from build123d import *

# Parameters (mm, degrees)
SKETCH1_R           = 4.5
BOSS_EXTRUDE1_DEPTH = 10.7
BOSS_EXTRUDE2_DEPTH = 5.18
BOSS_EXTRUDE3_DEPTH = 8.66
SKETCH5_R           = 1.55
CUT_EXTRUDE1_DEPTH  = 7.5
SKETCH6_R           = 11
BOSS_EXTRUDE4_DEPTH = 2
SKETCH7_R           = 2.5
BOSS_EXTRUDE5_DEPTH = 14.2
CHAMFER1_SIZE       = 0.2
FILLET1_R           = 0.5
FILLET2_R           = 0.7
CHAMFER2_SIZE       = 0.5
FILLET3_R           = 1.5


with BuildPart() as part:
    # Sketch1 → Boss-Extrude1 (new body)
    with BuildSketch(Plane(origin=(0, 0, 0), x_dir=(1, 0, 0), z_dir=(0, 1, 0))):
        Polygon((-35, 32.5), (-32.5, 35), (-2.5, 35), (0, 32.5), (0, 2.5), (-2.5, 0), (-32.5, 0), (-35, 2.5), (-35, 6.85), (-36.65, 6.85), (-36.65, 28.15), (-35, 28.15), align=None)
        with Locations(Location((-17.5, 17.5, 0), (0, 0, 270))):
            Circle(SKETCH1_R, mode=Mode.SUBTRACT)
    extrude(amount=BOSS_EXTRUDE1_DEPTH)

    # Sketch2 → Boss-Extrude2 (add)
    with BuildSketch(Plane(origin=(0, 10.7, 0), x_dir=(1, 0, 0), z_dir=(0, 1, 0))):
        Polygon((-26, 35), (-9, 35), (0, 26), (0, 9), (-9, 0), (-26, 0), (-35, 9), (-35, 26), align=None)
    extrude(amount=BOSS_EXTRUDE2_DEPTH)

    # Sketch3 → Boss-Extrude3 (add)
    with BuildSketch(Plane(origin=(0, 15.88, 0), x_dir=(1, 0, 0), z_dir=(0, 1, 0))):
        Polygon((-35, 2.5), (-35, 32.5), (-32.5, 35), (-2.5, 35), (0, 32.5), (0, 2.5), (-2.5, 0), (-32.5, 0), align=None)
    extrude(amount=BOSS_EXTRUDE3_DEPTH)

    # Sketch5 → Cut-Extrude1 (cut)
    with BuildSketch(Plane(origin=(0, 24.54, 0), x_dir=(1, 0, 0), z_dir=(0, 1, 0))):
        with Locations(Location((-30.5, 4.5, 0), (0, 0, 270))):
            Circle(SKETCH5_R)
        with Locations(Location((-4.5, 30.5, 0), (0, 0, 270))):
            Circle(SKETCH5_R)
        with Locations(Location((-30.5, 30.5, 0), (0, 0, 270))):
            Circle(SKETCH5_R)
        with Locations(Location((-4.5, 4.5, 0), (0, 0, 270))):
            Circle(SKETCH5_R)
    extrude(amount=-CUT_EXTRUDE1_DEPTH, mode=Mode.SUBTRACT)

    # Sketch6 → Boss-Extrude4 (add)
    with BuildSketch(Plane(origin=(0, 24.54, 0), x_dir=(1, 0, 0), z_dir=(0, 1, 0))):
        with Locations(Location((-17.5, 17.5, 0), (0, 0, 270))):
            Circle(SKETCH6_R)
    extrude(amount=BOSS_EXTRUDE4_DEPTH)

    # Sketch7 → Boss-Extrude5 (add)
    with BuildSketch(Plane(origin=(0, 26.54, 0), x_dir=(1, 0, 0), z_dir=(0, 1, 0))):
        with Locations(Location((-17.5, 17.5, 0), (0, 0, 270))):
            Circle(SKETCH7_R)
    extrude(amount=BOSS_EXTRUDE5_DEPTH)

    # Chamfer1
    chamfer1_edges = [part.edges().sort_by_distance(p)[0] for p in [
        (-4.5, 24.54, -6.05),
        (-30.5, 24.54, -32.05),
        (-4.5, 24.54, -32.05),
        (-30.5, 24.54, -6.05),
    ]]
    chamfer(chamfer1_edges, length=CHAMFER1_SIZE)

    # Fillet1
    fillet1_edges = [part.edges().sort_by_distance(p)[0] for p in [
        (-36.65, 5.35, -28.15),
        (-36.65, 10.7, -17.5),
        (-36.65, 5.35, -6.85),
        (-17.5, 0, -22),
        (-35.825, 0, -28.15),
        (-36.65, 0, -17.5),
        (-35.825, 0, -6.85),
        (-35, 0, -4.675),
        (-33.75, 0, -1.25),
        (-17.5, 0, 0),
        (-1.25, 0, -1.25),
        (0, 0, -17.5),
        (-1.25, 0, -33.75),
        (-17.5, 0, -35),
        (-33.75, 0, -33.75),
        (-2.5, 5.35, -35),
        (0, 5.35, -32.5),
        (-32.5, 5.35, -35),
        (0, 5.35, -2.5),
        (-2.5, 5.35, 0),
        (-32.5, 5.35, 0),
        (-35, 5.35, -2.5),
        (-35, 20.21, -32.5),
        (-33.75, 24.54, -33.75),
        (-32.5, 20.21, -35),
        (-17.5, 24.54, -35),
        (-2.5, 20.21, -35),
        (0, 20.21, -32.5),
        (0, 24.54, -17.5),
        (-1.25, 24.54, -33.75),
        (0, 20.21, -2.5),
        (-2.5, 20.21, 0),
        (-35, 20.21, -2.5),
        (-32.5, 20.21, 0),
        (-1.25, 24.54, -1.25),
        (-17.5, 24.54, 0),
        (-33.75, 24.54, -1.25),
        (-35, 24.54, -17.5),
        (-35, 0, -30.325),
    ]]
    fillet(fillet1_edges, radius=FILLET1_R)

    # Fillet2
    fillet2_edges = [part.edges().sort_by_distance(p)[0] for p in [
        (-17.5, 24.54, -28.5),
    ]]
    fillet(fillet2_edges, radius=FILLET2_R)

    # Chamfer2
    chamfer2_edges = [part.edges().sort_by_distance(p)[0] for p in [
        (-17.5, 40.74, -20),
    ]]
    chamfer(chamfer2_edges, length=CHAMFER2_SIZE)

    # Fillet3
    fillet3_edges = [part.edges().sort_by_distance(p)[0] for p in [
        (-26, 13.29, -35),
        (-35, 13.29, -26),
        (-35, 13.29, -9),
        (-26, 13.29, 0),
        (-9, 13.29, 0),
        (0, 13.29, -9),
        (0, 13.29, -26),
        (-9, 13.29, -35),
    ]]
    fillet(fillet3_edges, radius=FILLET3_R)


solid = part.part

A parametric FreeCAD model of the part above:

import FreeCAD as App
import Part
import Sketcher

V = App.Vector
Q = App.Units.Quantity


def edges_at(feature, points):
    """Names of the edges that pass closest to the given points."""
    edges = feature.Shape.Edges
    near = lambda p: min(range(len(edges)), key=lambda i: edges[i].distToShape(Part.Vertex(*p))[0])
    return sorted({f"Edge{near(p) + 1}" for p in points})


def add_polygon(sketch, points):
    """Adds a closed chain of lines whose ends are joined by coincident constraints."""
    first, n = sketch.GeometryCount, len(points)
    for a, b in zip(points, points[1:] + points[:1]):
        sketch.addGeometry(Part.LineSegment(App.Vector(*a, 0), App.Vector(*b, 0)), False)
    for i in range(n):
        sketch.addConstraint(Sketcher.Constraint("Coincident", first + i, 2, first + (i + 1) % n, 1))

doc = App.newDocument("Part")
params = doc.addObject("Spreadsheet::Sheet", "Params")
for row, (alias, value) in enumerate([
    ("sketch1_diameter", "9 mm"),
    ("sketch1_width", "30 mm"),
    ("sketch1_height", "21.3 mm"),
    ("sketch1_width2", "1.65 mm"),
    ("pad1_length", "10.7 mm"),
    ("sketch2_width", "17 mm"),
    ("pad2_length", "5.18 mm"),
    ("sketch3_width", "30 mm"),
    ("pad3_length", "8.66 mm"),
    ("sketch4_diameter", "3.1 mm"),
    ("pocket1_length", "7.5 mm"),
    ("sketch5_diameter", "22 mm"),
    ("pad4_length", "2 mm"),
    ("sketch6_diameter", "5 mm"),
    ("pad5_length", "14.2 mm"),
    ("chamfer_size", "0.2 mm"),
    ("fillet_radius", "0.5 mm"),
    ("fillet2_radius", "0.7 mm"),
    ("chamfer2_size", "0.5 mm"),
    ("fillet3_radius", "1.5 mm"),
], start=1):
    params.set(f"A{row}", alias)
    params.set(f"B{row}", "=" + value)
    params.setAlias(f"B{row}", alias)

body = doc.addObject("PartDesign::Body", "Body")

# Sketch on XZ plane
sketch1 = body.newObject("Sketcher::SketchObject", "Sketch")
sketch1.AttachmentSupport = (doc.getObject("XZ_Plane"), [""])
sketch1.MapMode = "FlatFace"
add_polygon(sketch1, [(-32.5, -35), (-35, -32.5), (-35, -28.1), (-36.6, -28.1), (-36.6, -6.8), (-35, -6.8), (-35, -2.5), (-32.5, 0), (-2.5, 0), (0, -2.5), (0, -32.5), (-2.5, -35)])  # lines 0-11
sketch1.addGeometry(Part.Circle(V(-17.5, -17.5, 0), V(0, 0, 1), 4.5), False)  # 12
sketch1.addConstraint(Sketcher.Constraint("Vertical", 1))
sketch1.addConstraint(Sketcher.Constraint("Horizontal", 2))
sketch1.addConstraint(Sketcher.Constraint("Vertical", 3))
sketch1.addConstraint(Sketcher.Constraint("Horizontal", 4))
sketch1.addConstraint(Sketcher.Constraint("Vertical", 5))
sketch1.addConstraint(Sketcher.Constraint("Horizontal", 7))
sketch1.addConstraint(Sketcher.Constraint("Vertical", 9))
sketch1.addConstraint(Sketcher.Constraint("Horizontal", 11))
sketch1.addConstraint(Sketcher.Constraint("PointOnObject", 6, 2, -1))
sketch1.addConstraint(Sketcher.Constraint("PointOnObject", 8, 2, -2))
sketch1.addConstraint(Sketcher.Constraint("Perpendicular", 0, 6))
sketch1.addConstraint(Sketcher.Constraint("Perpendicular", 6, 8))
sketch1.addConstraint(Sketcher.Constraint("Perpendicular", 8, 10))
sketch1.addConstraint(Sketcher.Constraint("Horizontal", 5, 2, 8, 2))
sketch1.addConstraint(Sketcher.Constraint("Horizontal", 0, 2, 9, 2))
sketch1.addConstraint(Sketcher.Constraint("Vertical", 1, 2, 4, 2))
sketch1.addConstraint(Sketcher.Constraint("Vertical", 7, 2, 10, 2))
sketch1.addConstraint(Sketcher.Constraint("Vertical", 6, 2, 11, 2))
sketch1.addConstraint(Sketcher.Constraint("Equal", 1, 5))
sketch1.addConstraint(Sketcher.Constraint("Equal", 11, 9))
sketch1.addConstraint(Sketcher.Constraint("Diameter", 12, Q("9 mm")))
sketch1.addConstraint(Sketcher.Constraint("DistanceX", 7, 1, 7, 2, Q("30 mm")))
sketch1.addConstraint(Sketcher.Constraint("DistanceY", 3, 1, 3, 2, Q("21.3 mm")))
sketch1.addConstraint(Sketcher.Constraint("DistanceX", 0, 2, -1, 1, Q("35 mm")))
sketch1.addConstraint(Sketcher.Constraint("DistanceY", 0, 2, 12, 3, Q("15 mm")))
sketch1.addConstraint(Sketcher.Constraint("DistanceX", 6, 2, 12, 3, Q("15 mm")))
sketch1.addConstraint(Sketcher.Constraint("DistanceX", 2, 2, 2, 1, Q("1.65 mm")))
sketch1.setExpression("Constraints[32]", "Params.sketch1_diameter")
sketch1.setExpression("Constraints[33]", "Params.sketch1_width")
sketch1.setExpression("Constraints[34]", "Params.sketch1_height")
sketch1.setExpression("Constraints[38]", "Params.sketch1_width2")
pad1 = body.newObject("PartDesign::Pad", "Pad")
pad1.Profile = sketch1
pad1.setExpression("Length", "Params.pad1_length")
pad1.Reversed = True

# Sketch on XZ plane
sketch2 = body.newObject("Sketcher::SketchObject", "Sketch001")
sketch2.AttachmentSupport = (doc.getObject("XZ_Plane"), [""])
sketch2.MapMode = "FlatFace"
sketch2.AttachmentOffset = App.Placement(V(0, 0, -10.7), App.Rotation())
add_polygon(sketch2, [(-9, -35), (-26, -35), (-35, -26), (-35, -9), (-26, 0), (-9, 0), (0, -9), (0, -26)])  # lines 0-7
sketch2.addConstraint(Sketcher.Constraint("Horizontal", 0))
sketch2.addConstraint(Sketcher.Constraint("Vertical", 2))
sketch2.addConstraint(Sketcher.Constraint("Horizontal", 4))
sketch2.addConstraint(Sketcher.Constraint("Vertical", 6))
sketch2.addConstraint(Sketcher.Constraint("PointOnObject", 3, 2, -1))
sketch2.addConstraint(Sketcher.Constraint("PointOnObject", 5, 2, -2))
sketch2.addConstraint(Sketcher.Constraint("Perpendicular", 1, 3))
sketch2.addConstraint(Sketcher.Constraint("Perpendicular", 3, 5))
sketch2.addConstraint(Sketcher.Constraint("Perpendicular", 5, 7))
sketch2.addConstraint(Sketcher.Constraint("Horizontal", 2, 2, 5, 2))
sketch2.addConstraint(Sketcher.Constraint("Horizontal", 1, 2, 6, 2))
sketch2.addConstraint(Sketcher.Constraint("Vertical", 0, 2, 3, 2))
sketch2.addConstraint(Sketcher.Constraint("Vertical", 4, 2, 7, 2))
sketch2.addConstraint(Sketcher.Constraint("Equal", 4, 2))
sketch2.addConstraint(Sketcher.Constraint("DistanceX", 0, 2, 0, 1, Q("17 mm")))
sketch2.addConstraint(Sketcher.Constraint("DistanceX", 0, 2, -1, 1, Q("26 mm")))
sketch2.setExpression("Constraints[22]", "Params.sketch2_width")
pad2 = body.newObject("PartDesign::Pad", "Pad001")
pad2.Profile = sketch2
pad2.setExpression("Length", "Params.pad2_length")
pad2.Reversed = True

# Sketch on XZ plane
sketch3 = body.newObject("Sketcher::SketchObject", "Sketch002")
sketch3.AttachmentSupport = (doc.getObject("XZ_Plane"), [""])
sketch3.MapMode = "FlatFace"
sketch3.AttachmentOffset = App.Placement(V(0, 0, -15.88), App.Rotation())
add_polygon(sketch3, [(-35, -32.5), (-35, -2.5), (-32.5, 0), (-2.5, 0), (0, -2.5), (0, -32.5), (-2.5, -35), (-32.5, -35)])  # lines 0-7
sketch3.addConstraint(Sketcher.Constraint("Vertical", 0))
sketch3.addConstraint(Sketcher.Constraint("Horizontal", 2))
sketch3.addConstraint(Sketcher.Constraint("Vertical", 4))
sketch3.addConstraint(Sketcher.Constraint("Horizontal", 6))
sketch3.addConstraint(Sketcher.Constraint("PointOnObject", 1, 2, -1))
sketch3.addConstraint(Sketcher.Constraint("PointOnObject", 3, 2, -2))
sketch3.addConstraint(Sketcher.Constraint("Perpendicular", 1, 3))
sketch3.addConstraint(Sketcher.Constraint("Perpendicular", 3, 5))
sketch3.addConstraint(Sketcher.Constraint("Perpendicular", 5, 7))
sketch3.addConstraint(Sketcher.Constraint("Horizontal", 0, 2, 3, 2))
sketch3.addConstraint(Sketcher.Constraint("Horizontal", 4, 2, 7, 2))
sketch3.addConstraint(Sketcher.Constraint("Vertical", 2, 2, 5, 2))
sketch3.addConstraint(Sketcher.Constraint("Vertical", 1, 2, 6, 2))
sketch3.addConstraint(Sketcher.Constraint("Equal", 6, 0))
sketch3.addConstraint(Sketcher.Constraint("DistanceX", 2, 1, 2, 2, Q("30 mm")))
sketch3.addConstraint(Sketcher.Constraint("DistanceX", 0, 2, -1, 1, Q("35 mm")))
sketch3.setExpression("Constraints[22]", "Params.sketch3_width")
pad3 = body.newObject("PartDesign::Pad", "Pad002")
pad3.Profile = sketch3
pad3.setExpression("Length", "Params.pad3_length")
pad3.Reversed = True

# Sketch on XZ plane
sketch4 = body.newObject("Sketcher::SketchObject", "Sketch003")
sketch4.AttachmentSupport = (doc.getObject("XZ_Plane"), [""])
sketch4.MapMode = "FlatFace"
sketch4.AttachmentOffset = App.Placement(V(0, 0, -24.54), App.Rotation())
sketch4.addGeometry(Part.Circle(V(-30.5, -4.5, 0), V(0, 0, 1), 1.6), False)
sketch4.addGeometry(Part.Circle(V(-4.5, -30.5, 0), V(0, 0, 1), 1.6), False)
sketch4.addGeometry(Part.Circle(V(-30.5, -30.5, 0), V(0, 0, 1), 1.6), False)
sketch4.addGeometry(Part.Circle(V(-4.5, -4.5, 0), V(0, 0, 1), 1.6), False)
sketch4.addConstraint(Sketcher.Constraint("Equal", 0, 1))
sketch4.addConstraint(Sketcher.Constraint("Equal", 1, 2))
sketch4.addConstraint(Sketcher.Constraint("Equal", 2, 3))
sketch4.addConstraint(Sketcher.Constraint("Horizontal", 1, 3, 2, 3))
sketch4.addConstraint(Sketcher.Constraint("Horizontal", 0, 3, 3, 3))
sketch4.addConstraint(Sketcher.Constraint("Vertical", 0, 3, 2, 3))
sketch4.addConstraint(Sketcher.Constraint("Vertical", 1, 3, 3, 3))
sketch4.addConstraint(Sketcher.Constraint("Diameter", 0, Q("3.1 mm")))
sketch4.addConstraint(Sketcher.Constraint("DistanceX", 0, 3, 1, 3, Q("26 mm")))
sketch4.addConstraint(Sketcher.Constraint("DistanceY", 1, 3, 0, 3, Q("26 mm")))
sketch4.addConstraint(Sketcher.Constraint("DistanceX", 0, 3, -1, 1, Q("30.5 mm")))
sketch4.addConstraint(Sketcher.Constraint("DistanceY", 0, 3, -1, 1, Q("4.5 mm")))
sketch4.setExpression("Constraints[7]", "Params.sketch4_diameter")
pocket1 = body.newObject("PartDesign::Pocket", "Pocket")
pocket1.Profile = sketch4
pocket1.setExpression("Length", "Params.pocket1_length")
pocket1.Reversed = True

# Sketch on XZ plane
sketch5 = body.newObject("Sketcher::SketchObject", "Sketch004")
sketch5.AttachmentSupport = (doc.getObject("XZ_Plane"), [""])
sketch5.MapMode = "FlatFace"
sketch5.AttachmentOffset = App.Placement(V(0, 0, -24.54), App.Rotation())
sketch5.addGeometry(Part.Circle(V(-18, -18, 0), V(0, 0, 1), 11), False)
sketch5.addConstraint(Sketcher.Constraint("Diameter", 0, Q("22 mm")))
sketch5.addConstraint(Sketcher.Constraint("DistanceX", 0, 3, -1, 1, Q("17.5 mm")))
sketch5.addConstraint(Sketcher.Constraint("DistanceY", 0, 3, -1, 1, Q("17.5 mm")))
sketch5.setExpression("Constraints[0]", "Params.sketch5_diameter")
pad4 = body.newObject("PartDesign::Pad", "Pad003")
pad4.Profile = sketch5
pad4.setExpression("Length", "Params.pad4_length")
pad4.Reversed = True

# Sketch on XZ plane
sketch6 = body.newObject("Sketcher::SketchObject", "Sketch005")
sketch6.AttachmentSupport = (doc.getObject("XZ_Plane"), [""])
sketch6.MapMode = "FlatFace"
sketch6.AttachmentOffset = App.Placement(V(0, 0, -26.54), App.Rotation())
sketch6.addGeometry(Part.Circle(V(-17.5, -17.5, 0), V(0, 0, 1), 2.5), False)
sketch6.addConstraint(Sketcher.Constraint("Diameter", 0, Q("5 mm")))
sketch6.addConstraint(Sketcher.Constraint("DistanceX", 0, 3, -1, 1, Q("17.5 mm")))
sketch6.addConstraint(Sketcher.Constraint("DistanceY", 0, 3, -1, 1, Q("17.5 mm")))
sketch6.setExpression("Constraints[0]", "Params.sketch6_diameter")
pad5 = body.newObject("PartDesign::Pad", "Pad004")
pad5.Profile = sketch6
pad5.setExpression("Length", "Params.pad5_length")
pad5.Reversed = True
doc.recompute()

chamfer = body.newObject("PartDesign::Chamfer", "Chamfer")
chamfer.Base = (pad5, edges_at(pad5, [
    (-4.5, 24.54, -6.05),
    (-30.5, 24.54, -32.05),
    (-4.5, 24.54, -32.05),
    (-30.5, 24.54, -6.05),
]))
chamfer.setExpression("Size", "Params.chamfer_size")
doc.recompute()

fillet = body.newObject("PartDesign::Fillet", "Fillet")
fillet.Base = (chamfer, edges_at(chamfer, [
    (-36.65, 5.35, -28.15),
    (-36.65, 10.7, -17.5),
    (-36.65, 5.35, -6.85),
    (-17.5, 0, -22),
    (-35.825, 0, -28.15),
    (-36.65, 0, -17.5),
    (-35.825, 0, -6.85),
    (-35, 0, -4.675),
    (-33.75, 0, -1.25),
    (-17.5, 0, 0),
    (-1.25, 0, -1.25),
    (0, 0, -17.5),
    (-1.25, 0, -33.75),
    (-17.5, 0, -35),
    (-33.75, 0, -33.75),
    (-2.5, 5.35, -35),
    (0, 5.35, -32.5),
    (-32.5, 5.35, -35),
    (0, 5.35, -2.5),
    (-2.5, 5.35, 0),
    (-32.5, 5.35, 0),
    (-35, 5.35, -2.5),
    (-35, 20.21, -32.5),
    (-33.75, 24.54, -33.75),
    (-32.5, 20.21, -35),
    (-17.5, 24.54, -35),
    (-2.5, 20.21, -35),
    (0, 20.21, -32.5),
    (0, 24.54, -17.5),
    (-1.25, 24.54, -33.75),
    (0, 20.21, -2.5),
    (-2.5, 20.21, 0),
    (-35, 20.21, -2.5),
    (-32.5, 20.21, 0),
    (-1.25, 24.54, -1.25),
    (-17.5, 24.54, 0),
    (-33.75, 24.54, -1.25),
    (-35, 24.54, -17.5),
    (-35, 0, -30.325),
]))
fillet.setExpression("Radius", "Params.fillet_radius")
doc.recompute()

fillet2 = body.newObject("PartDesign::Fillet", "Fillet001")
fillet2.Base = (fillet, edges_at(fillet, [(-17.5, 24.54, -28.5)]))
fillet2.setExpression("Radius", "Params.fillet2_radius")
doc.recompute()

chamfer2 = body.newObject("PartDesign::Chamfer", "Chamfer001")
chamfer2.Base = (fillet2, edges_at(fillet2, [(-17.5, 40.74, -20)]))
chamfer2.setExpression("Size", "Params.chamfer2_size")
doc.recompute()

fillet3 = body.newObject("PartDesign::Fillet", "Fillet002")
fillet3.Base = (chamfer2, edges_at(chamfer2, [
    (-26, 13.29, -35),
    (-35, 13.29, -26),
    (-35, 13.29, -9),
    (-26, 13.29, 0),
    (-9, 13.29, 0),
    (0, 13.29, -9),
    (0, 13.29, -26),
    (-9, 13.29, -35),
]))
fillet3.setExpression("Radius", "Params.fillet3_radius")

doc.recompute()
